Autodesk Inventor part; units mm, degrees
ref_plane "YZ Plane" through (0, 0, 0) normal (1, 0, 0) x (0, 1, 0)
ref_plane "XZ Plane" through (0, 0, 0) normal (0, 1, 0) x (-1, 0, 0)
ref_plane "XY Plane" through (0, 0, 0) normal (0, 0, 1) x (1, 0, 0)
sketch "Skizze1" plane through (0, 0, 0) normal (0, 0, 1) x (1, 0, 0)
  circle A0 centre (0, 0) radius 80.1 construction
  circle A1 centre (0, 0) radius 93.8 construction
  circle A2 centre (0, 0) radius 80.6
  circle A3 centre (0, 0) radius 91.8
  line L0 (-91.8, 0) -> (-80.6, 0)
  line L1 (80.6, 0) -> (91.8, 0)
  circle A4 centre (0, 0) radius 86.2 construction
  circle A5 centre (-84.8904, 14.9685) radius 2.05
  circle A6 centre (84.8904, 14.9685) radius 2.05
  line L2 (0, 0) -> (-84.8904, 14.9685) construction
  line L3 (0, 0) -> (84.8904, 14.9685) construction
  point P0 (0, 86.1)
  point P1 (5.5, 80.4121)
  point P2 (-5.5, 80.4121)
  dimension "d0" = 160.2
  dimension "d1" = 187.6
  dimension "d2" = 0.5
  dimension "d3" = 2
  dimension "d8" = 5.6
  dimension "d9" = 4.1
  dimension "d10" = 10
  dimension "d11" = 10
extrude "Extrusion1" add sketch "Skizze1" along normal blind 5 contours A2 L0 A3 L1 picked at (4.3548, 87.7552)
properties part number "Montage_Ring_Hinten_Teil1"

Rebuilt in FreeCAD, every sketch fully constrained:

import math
import FreeCAD as App
import Part
import Sketcher

doc = App.newDocument("Part")
body = doc.addObject("PartDesign::Body", "Body")

# Sketch on XY plane
sketch1 = doc.addObject("Sketcher::SketchObject", "Sketch")
body.addObject(sketch1)
sketch1.AttachmentSupport = (doc.XY_Plane, [""])
sketch1.MapMode = "FlatFace"
sketch1.addGeometry([
    Part.ArcOfCircle(Part.Circle(App.Vector(0, 0, 0), App.Vector(0, 0, 1), 80.6), math.radians(0), math.radians(180)),  # 0
    Part.LineSegment(App.Vector(80.6, 0, 0), App.Vector(91.8, 0, 0)),  # 1
    Part.ArcOfCircle(Part.Circle(App.Vector(0, 0, 0), App.Vector(0, 0, 1), 91.8), math.radians(0), math.radians(180)),  # 2
    Part.LineSegment(App.Vector(-91.8, 0, 0), App.Vector(-80.6, 0, 0)),  # 3
    Part.Circle(App.Vector(-84.9, 15, 0), App.Vector(0, 0, 1), 2),  # 4
    Part.Circle(App.Vector(84.9, 15, 0), App.Vector(0, 0, 1), 2),  # 5
], False)
sketch1.addConstraint([
    Sketcher.Constraint("Coincident", 0, 1, 1, 1),
    Sketcher.Constraint("Coincident", 1, 2, 2, 1),
    Sketcher.Constraint("Coincident", 2, 2, 3, 1),
    Sketcher.Constraint("Coincident", 3, 2, 0, 2),
    Sketcher.Constraint("Horizontal", 1),
    Sketcher.Constraint("Horizontal", 3),
    Sketcher.Constraint("Coincident", 0, 3, -1, 1),
    Sketcher.Constraint("Coincident", 2, 3, -1, 1),
    Sketcher.Constraint("Equal", 4, 5),
    Sketcher.Constraint("Symmetric", 4, 3, 5, 3, -2),
    Sketcher.Constraint("PointOnObject", 0, 1, -1),
    Sketcher.Constraint("PointOnObject", 2, 2, -1),
    Sketcher.Constraint("Diameter", 4, 4.1),
    Sketcher.Constraint("Radius", 0, 80.6),
    Sketcher.Constraint("Radius", 2, 91.8),
    Sketcher.Constraint("DistanceX", 4, 3, -1, 1, 84.8904),
    Sketcher.Constraint("DistanceY", -1, 1, 4, 3, 14.9685),
])
pad1 = doc.addObject("PartDesign::Pad", "Pad")
body.addObject(pad1)
pad1.Profile = sketch1
pad1.Length = 5

doc.recompute()
